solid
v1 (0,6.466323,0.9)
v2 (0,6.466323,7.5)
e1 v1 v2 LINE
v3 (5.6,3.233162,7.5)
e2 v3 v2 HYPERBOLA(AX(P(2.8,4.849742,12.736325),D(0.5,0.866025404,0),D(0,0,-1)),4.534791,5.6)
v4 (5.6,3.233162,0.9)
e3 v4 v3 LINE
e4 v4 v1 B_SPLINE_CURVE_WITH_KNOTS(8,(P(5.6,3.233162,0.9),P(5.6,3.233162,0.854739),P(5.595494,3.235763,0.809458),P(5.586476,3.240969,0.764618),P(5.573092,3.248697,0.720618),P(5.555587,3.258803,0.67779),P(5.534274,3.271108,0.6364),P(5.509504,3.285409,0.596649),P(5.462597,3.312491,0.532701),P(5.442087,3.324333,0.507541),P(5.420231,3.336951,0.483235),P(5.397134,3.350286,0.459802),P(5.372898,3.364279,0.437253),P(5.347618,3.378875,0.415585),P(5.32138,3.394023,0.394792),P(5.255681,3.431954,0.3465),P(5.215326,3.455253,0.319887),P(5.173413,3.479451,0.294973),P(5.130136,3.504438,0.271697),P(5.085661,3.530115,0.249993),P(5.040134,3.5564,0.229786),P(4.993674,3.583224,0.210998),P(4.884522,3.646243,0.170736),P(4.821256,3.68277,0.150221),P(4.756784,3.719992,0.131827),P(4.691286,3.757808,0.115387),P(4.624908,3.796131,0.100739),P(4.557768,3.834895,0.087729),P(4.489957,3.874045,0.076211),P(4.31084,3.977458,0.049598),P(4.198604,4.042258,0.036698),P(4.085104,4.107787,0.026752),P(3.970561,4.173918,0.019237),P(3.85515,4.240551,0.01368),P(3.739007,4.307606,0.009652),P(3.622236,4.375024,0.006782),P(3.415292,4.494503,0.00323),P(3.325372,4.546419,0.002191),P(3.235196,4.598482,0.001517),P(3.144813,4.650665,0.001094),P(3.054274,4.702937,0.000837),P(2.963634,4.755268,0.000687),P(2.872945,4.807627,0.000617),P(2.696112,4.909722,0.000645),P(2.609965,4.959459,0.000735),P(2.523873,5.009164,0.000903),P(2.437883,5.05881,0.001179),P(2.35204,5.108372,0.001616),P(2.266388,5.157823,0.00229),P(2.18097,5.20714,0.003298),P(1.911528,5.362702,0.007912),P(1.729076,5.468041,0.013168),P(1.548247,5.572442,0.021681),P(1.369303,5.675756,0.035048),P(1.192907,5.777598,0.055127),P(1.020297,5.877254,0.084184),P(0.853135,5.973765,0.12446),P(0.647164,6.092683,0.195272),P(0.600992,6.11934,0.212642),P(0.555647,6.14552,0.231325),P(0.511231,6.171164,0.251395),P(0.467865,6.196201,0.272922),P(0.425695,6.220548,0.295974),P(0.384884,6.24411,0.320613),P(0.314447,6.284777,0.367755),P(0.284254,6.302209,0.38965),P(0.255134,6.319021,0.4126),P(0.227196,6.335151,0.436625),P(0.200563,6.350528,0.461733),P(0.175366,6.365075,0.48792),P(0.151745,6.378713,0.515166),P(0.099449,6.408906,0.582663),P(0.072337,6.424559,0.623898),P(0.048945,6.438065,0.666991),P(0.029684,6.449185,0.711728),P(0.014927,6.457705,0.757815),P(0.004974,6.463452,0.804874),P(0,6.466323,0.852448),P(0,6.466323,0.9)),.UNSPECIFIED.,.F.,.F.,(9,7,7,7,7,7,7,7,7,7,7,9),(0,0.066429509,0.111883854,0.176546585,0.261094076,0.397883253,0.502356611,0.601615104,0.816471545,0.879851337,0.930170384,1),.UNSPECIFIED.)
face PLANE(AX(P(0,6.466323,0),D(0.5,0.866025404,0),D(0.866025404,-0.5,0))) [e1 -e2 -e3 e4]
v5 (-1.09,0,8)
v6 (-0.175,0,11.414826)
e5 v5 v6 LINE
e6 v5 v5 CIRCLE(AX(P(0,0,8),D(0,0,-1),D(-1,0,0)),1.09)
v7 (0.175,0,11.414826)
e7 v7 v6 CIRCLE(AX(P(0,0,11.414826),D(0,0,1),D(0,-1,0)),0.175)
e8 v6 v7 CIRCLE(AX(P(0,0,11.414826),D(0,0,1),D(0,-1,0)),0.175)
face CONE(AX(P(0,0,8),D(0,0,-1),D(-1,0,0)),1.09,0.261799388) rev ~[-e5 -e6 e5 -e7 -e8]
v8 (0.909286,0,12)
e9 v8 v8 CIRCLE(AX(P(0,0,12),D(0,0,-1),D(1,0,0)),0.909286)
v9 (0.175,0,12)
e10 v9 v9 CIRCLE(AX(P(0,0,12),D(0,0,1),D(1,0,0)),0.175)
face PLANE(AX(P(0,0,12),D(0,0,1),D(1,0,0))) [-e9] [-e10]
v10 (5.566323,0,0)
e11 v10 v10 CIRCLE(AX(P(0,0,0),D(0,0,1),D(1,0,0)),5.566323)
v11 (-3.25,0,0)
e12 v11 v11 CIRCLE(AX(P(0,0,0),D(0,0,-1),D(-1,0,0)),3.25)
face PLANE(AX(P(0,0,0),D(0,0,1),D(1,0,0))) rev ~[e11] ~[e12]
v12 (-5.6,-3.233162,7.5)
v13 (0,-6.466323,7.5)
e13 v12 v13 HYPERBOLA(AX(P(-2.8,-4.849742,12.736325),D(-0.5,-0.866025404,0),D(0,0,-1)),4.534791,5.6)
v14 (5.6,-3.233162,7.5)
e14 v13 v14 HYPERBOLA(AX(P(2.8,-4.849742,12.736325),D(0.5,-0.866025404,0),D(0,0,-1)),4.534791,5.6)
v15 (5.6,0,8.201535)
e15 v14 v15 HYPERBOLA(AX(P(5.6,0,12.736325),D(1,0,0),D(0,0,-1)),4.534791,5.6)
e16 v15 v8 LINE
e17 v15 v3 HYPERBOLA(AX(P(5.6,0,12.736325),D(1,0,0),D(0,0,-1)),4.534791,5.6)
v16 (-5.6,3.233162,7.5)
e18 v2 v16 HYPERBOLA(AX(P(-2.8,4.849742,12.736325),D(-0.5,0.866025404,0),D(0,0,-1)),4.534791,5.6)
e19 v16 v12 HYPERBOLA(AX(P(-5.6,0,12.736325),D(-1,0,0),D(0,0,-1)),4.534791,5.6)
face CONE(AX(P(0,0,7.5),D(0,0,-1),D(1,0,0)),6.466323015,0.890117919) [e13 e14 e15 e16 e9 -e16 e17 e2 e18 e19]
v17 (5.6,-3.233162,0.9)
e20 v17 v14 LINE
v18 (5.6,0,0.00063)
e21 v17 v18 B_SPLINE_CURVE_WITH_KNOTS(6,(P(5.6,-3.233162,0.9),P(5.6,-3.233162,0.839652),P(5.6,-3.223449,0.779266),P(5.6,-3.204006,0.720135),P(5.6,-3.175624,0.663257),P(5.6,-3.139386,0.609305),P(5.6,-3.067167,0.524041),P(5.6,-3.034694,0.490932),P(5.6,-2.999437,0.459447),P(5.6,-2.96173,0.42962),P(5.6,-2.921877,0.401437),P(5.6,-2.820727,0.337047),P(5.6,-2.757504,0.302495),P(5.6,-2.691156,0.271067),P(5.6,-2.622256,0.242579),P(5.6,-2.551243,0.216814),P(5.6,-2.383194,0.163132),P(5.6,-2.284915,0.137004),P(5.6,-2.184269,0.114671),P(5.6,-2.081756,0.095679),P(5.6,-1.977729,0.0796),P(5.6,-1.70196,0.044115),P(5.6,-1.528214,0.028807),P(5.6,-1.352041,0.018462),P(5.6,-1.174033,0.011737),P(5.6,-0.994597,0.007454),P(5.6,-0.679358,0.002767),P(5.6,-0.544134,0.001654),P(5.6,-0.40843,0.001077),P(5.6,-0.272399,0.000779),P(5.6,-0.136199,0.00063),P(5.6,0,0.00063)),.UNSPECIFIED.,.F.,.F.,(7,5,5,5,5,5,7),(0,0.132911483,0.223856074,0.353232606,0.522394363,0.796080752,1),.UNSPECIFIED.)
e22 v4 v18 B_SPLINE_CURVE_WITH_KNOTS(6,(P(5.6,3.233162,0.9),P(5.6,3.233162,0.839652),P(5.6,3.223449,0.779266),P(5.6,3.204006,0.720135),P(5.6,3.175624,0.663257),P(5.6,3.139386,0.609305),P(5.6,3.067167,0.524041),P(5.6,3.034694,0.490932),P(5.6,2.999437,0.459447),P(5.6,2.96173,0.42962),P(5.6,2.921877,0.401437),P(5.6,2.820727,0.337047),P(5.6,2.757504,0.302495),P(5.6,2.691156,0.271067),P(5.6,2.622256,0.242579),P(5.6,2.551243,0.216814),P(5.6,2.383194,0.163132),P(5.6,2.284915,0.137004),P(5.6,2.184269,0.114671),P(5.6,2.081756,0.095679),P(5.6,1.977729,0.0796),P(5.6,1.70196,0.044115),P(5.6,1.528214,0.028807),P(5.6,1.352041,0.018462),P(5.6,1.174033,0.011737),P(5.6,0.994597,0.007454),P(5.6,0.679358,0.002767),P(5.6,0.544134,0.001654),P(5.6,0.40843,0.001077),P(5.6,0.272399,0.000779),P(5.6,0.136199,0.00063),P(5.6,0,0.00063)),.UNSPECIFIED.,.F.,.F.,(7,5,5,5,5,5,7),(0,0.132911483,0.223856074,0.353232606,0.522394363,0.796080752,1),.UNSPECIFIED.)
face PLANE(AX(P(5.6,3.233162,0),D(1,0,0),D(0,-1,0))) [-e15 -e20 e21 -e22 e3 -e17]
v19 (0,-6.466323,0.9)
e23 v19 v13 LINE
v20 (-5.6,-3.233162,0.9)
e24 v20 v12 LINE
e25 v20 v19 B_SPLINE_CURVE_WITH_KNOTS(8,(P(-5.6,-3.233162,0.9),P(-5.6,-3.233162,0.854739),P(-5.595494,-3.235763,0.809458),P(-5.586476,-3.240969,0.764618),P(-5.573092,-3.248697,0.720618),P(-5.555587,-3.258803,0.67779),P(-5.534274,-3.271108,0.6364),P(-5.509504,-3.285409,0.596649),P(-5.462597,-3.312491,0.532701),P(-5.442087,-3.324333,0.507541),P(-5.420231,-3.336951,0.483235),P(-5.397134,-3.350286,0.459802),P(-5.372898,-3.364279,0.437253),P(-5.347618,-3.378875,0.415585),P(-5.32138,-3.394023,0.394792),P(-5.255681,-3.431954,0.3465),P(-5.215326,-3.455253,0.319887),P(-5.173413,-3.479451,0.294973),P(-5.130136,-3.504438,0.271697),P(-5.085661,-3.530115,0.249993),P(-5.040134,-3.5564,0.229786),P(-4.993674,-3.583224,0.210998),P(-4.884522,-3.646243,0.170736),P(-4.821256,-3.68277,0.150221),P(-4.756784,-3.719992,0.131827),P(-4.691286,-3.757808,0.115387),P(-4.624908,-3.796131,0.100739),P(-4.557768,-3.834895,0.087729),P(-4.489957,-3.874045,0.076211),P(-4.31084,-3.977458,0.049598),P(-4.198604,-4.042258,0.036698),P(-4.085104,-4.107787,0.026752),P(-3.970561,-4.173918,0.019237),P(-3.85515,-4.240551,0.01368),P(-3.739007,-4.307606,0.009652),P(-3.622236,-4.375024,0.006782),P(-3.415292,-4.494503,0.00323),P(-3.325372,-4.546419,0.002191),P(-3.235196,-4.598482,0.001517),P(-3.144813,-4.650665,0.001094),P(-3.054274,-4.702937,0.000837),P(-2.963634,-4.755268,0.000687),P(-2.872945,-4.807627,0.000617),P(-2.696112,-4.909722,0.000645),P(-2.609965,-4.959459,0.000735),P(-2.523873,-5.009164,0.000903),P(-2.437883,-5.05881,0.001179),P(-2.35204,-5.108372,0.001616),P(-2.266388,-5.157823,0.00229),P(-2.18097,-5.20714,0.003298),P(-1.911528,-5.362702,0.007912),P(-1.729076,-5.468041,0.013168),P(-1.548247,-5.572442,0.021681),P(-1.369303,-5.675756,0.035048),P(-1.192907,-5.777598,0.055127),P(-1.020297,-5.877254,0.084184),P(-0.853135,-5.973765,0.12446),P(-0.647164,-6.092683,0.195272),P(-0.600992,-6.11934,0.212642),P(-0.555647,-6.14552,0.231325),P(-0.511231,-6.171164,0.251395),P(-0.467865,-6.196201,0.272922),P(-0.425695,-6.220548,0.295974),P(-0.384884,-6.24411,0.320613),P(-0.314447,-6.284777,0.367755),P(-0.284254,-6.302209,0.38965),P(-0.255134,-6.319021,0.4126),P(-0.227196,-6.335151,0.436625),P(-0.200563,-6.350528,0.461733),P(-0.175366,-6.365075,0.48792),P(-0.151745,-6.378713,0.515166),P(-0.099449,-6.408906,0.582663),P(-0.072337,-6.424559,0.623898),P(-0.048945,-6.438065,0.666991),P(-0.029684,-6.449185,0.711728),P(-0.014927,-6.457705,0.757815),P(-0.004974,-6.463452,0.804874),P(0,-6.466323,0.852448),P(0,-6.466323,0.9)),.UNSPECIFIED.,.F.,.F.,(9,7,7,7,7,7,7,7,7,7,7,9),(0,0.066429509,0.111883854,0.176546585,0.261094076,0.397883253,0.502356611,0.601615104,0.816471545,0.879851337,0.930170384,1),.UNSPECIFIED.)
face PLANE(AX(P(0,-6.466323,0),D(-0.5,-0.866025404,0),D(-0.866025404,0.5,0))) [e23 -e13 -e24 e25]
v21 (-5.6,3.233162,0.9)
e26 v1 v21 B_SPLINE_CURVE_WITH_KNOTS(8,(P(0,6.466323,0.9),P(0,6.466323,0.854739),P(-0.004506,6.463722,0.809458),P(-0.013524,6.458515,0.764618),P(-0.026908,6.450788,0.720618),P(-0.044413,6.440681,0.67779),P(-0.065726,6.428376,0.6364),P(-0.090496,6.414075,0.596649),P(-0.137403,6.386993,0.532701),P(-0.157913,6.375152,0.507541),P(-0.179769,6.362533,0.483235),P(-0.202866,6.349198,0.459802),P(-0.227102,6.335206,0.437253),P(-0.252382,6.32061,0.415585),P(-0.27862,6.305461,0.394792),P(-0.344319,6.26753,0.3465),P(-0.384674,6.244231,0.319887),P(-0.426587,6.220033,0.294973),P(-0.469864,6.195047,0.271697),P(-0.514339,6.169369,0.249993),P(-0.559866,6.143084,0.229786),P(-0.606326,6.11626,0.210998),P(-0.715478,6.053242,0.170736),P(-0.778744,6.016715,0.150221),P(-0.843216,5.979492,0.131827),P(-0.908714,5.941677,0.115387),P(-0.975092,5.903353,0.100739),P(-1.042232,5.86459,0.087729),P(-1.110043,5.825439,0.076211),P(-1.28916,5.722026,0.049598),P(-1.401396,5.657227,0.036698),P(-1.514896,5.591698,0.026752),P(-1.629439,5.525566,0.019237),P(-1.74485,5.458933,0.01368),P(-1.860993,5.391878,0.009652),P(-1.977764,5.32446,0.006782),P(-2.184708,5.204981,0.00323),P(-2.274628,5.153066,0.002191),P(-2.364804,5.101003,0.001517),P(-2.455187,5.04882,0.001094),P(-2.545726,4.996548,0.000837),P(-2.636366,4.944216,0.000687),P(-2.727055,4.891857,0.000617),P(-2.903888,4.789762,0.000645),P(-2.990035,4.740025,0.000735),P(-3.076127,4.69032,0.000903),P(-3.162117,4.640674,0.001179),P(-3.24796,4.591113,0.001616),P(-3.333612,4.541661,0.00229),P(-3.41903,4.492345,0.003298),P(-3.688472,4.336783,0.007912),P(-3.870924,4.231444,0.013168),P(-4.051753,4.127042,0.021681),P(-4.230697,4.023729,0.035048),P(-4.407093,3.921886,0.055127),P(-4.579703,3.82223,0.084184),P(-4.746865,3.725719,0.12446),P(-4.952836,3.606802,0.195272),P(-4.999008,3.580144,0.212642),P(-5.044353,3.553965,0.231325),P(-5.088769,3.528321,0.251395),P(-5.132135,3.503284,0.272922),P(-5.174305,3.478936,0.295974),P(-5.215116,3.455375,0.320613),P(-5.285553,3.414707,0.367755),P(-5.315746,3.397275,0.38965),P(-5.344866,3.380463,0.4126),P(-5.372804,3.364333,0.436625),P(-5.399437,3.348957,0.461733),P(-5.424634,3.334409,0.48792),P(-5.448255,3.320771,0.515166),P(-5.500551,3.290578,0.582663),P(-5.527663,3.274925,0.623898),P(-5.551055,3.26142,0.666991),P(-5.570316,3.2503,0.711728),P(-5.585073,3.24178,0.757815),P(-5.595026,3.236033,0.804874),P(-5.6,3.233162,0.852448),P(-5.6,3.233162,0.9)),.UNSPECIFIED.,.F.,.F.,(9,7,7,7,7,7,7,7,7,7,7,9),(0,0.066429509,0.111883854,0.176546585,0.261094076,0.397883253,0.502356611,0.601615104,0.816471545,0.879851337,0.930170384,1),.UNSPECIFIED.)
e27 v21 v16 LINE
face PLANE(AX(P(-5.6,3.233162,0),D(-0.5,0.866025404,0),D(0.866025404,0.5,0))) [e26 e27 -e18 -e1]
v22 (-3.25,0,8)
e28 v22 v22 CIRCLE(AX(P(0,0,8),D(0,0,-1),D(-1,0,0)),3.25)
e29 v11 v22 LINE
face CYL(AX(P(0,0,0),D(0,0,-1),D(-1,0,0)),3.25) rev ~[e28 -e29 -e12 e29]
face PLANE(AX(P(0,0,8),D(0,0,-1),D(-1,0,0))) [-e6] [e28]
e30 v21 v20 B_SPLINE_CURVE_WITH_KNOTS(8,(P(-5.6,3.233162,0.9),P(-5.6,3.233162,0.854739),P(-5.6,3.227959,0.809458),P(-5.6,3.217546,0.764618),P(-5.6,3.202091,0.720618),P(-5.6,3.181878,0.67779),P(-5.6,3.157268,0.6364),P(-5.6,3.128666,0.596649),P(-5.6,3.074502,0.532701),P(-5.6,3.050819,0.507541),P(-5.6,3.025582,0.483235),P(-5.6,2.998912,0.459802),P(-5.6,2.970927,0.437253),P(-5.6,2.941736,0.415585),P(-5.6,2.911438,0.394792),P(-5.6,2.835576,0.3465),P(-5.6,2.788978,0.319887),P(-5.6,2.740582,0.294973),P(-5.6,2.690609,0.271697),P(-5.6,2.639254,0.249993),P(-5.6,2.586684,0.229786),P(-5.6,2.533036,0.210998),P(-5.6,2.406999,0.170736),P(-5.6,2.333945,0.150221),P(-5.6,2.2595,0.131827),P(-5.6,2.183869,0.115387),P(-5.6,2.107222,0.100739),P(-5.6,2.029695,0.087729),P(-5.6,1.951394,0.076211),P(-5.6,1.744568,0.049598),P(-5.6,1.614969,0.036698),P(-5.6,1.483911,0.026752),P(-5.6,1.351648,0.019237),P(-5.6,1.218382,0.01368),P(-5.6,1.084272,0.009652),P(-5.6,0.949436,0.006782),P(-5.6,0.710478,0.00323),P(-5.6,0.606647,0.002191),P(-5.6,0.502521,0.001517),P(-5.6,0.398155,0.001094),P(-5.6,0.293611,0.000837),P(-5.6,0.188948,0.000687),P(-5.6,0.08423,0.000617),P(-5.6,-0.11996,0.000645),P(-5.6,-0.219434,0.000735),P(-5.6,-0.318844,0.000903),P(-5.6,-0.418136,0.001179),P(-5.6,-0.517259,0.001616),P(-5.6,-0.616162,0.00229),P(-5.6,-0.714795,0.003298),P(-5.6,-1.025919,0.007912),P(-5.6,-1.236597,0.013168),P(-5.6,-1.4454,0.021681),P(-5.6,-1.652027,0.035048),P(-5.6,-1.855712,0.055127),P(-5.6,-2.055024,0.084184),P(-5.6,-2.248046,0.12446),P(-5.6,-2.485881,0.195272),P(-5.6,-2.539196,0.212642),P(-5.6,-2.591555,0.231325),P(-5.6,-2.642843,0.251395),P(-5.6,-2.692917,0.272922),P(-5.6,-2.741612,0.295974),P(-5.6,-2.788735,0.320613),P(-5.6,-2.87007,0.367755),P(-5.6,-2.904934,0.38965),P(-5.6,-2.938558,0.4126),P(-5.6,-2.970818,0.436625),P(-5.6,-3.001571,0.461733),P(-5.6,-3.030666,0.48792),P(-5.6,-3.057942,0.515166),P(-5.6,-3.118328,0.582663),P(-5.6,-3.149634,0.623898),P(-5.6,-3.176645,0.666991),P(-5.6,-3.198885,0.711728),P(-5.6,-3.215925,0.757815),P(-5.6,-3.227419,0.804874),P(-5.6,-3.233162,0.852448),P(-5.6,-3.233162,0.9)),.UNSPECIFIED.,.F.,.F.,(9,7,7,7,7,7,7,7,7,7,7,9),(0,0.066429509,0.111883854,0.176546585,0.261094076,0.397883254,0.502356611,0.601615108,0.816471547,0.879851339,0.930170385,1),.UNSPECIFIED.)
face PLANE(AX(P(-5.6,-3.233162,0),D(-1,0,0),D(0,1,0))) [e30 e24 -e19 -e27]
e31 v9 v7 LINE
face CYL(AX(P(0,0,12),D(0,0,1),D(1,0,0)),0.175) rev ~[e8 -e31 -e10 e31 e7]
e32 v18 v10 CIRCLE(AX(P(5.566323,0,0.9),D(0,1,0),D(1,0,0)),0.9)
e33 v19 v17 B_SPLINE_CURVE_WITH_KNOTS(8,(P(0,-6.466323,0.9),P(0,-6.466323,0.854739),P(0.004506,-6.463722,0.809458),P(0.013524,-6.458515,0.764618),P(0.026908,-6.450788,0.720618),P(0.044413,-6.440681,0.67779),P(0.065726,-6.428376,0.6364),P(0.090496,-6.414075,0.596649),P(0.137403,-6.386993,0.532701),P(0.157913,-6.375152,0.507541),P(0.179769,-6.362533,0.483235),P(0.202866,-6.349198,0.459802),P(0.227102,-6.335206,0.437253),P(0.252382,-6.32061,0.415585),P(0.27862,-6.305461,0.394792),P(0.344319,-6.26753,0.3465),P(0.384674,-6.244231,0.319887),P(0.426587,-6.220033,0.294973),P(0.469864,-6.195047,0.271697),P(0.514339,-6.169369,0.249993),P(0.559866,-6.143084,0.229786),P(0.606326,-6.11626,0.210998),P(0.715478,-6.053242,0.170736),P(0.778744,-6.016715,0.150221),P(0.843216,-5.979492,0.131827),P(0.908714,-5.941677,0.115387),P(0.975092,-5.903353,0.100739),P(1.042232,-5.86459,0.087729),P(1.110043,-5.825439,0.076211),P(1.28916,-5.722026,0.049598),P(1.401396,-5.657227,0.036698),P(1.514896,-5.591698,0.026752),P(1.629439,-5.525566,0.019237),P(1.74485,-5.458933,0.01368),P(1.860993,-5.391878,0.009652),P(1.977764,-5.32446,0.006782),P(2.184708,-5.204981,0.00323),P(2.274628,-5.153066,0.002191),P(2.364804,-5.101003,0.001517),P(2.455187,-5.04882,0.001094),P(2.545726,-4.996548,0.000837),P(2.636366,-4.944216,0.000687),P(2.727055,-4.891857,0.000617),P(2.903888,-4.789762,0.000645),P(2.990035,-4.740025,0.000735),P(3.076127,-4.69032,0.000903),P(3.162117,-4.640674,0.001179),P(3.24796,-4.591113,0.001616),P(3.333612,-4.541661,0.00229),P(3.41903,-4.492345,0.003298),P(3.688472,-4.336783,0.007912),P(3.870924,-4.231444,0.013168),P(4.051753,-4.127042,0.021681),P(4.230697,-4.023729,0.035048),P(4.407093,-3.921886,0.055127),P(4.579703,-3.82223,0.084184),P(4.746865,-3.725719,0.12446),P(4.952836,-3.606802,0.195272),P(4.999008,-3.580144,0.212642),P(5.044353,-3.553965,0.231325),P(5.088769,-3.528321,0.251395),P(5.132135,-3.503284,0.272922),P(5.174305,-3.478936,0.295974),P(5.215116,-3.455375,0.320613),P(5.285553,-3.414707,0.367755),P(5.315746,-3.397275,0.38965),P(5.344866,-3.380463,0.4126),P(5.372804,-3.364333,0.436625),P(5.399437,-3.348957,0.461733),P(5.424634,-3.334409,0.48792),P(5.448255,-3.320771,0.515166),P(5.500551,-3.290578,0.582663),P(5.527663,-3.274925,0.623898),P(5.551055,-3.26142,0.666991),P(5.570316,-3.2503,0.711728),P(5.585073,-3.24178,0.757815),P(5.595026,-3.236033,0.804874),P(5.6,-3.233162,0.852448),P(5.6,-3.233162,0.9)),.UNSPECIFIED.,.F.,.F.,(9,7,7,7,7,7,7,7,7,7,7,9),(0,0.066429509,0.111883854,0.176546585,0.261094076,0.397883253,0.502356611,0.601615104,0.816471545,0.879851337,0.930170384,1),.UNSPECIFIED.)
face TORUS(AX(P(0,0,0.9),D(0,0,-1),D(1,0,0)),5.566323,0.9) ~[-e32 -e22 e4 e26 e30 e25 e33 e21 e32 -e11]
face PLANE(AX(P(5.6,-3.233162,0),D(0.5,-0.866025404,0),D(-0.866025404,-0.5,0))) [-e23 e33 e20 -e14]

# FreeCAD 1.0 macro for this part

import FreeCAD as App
import Part
import Sketcher

V = App.Vector
Q = App.Units.Quantity


def edges_at(feature, points):
    """Names of the edges that pass closest to the given points."""
    edges = feature.Shape.Edges
    near = lambda p: min(range(len(edges)), key=lambda i: edges[i].distToShape(Part.Vertex(*p))[0])
    return sorted({f"Edge{near(p) + 1}" for p in points})


def faces_at(feature, points):
    """Names of the faces that lie closest to the given points."""
    faces = feature.Shape.Faces
    near = lambda p: min(range(len(faces)), key=lambda i: faces[i].distToShape(Part.Vertex(*p))[0])
    return sorted({f"Face{near(p) + 1}" for p in points})


def add_polygon(sketch, points):
    """Adds a closed chain of lines whose ends are joined by coincident constraints."""
    first, n = sketch.GeometryCount, len(points)
    for a, b in zip(points, points[1:] + points[:1]):
        sketch.addGeometry(Part.LineSegment(App.Vector(*a, 0), App.Vector(*b, 0)), False)
    for i in range(n):
        sketch.addConstraint(Sketcher.Constraint("Coincident", first + i, 2, first + (i + 1) % n, 1))

doc = App.newDocument("Part")
body = doc.addObject("PartDesign::Body", "Body")

# Sketch on XY plane
sketch1 = doc.addObject("Sketcher::SketchObject", "Sketch")
body.addObject(sketch1)
sketch1.AttachmentSupport = (doc.XY_Plane, [""])
sketch1.MapMode = "FlatFace"
sketch1.addGeometry(Part.Circle(V(0, 0, 0), V(0, 0, 1), 6.466323), False)
sketch1.addConstraint([
    Sketcher.Constraint("Coincident", 0, 3, -1, 1),
    Sketcher.Constraint("Diameter", 0, 12.932646),
])
pad1 = doc.addObject("PartDesign::Pad", "Pad")
body.addObject(pad1)
pad1.Profile = sketch1
pad1.Length = 7.5

# Sketch on XY plane
sketch2 = doc.addObject("Sketcher::SketchObject", "Sketch001")
body.addObject(sketch2)
sketch2.AttachmentSupport = (doc.XY_Plane, [""])
sketch2.MapMode = "FlatFace"
sketch2.AttachmentOffset = App.Placement(V(0, 0, 7.5), App.Rotation())
sketch2.addGeometry(Part.Circle(V(0, 0, 0), V(0, 0, 1), 6.466323), False)
sketch2.addConstraint([
    Sketcher.Constraint("Coincident", 0, 3, -1, 1),
    Sketcher.Constraint("Diameter", 0, 12.932646),
])
pad2 = doc.addObject("PartDesign::Pad", "Pad001")
body.addObject(pad2)
pad2.Profile = sketch2
pad2.Length = 4.5
pad2.TaperAngle = -51
doc.recompute()

fillet = doc.addObject("PartDesign::Fillet", "Fillet")
body.addObject(fillet)
fillet.Base = (pad2, edges_at(pad2, [(-6.466, 0, 0)]))
fillet.Radius = 0.9

# Sketch on XY plane
sketch3 = doc.addObject("Sketcher::SketchObject", "Sketch002")
body.addObject(sketch3)
sketch3.AttachmentSupport = (doc.XY_Plane, [""])
sketch3.MapMode = "FlatFace"
add_polygon(sketch3, [(9.653, 9.653), (9.653, -9.653), (-9.653, -9.653), (-9.653, 9.653)])  # lines 0-3
add_polygon(sketch3, [(5.6, 3.233162), (0, 6.466323), (-5.6, 3.233162), (-5.6, -3.233162), (0, -6.466323), (5.6, -3.233162)])  # lines 4-9
sketch3.addConstraint([
    Sketcher.Constraint("Vertical", 0),
    Sketcher.Constraint("Horizontal", 1),
    Sketcher.Constraint("Vertical", 2),
    Sketcher.Constraint("Horizontal", 3),
    Sketcher.Constraint("Vertical", 6),
    Sketcher.Constraint("Vertical", 9),
    Sketcher.Constraint("Symmetric", 0, 2, 2, 2, -1, 1),
    Sketcher.Constraint("Symmetric", 4, 2, 7, 2, -1, 1),
    Sketcher.Constraint("Symmetric", 5, 2, 8, 2, -1, 1),
    Sketcher.Constraint("PointOnObject", 4, 2, -2),
    Sketcher.Constraint("Parallel", 4, 7),
    Sketcher.Constraint("Horizontal", 6, 2, 8, 2),
    Sketcher.Constraint("Equal", 3, 0),
    Sketcher.Constraint("Angle", 4, Q("150 deg")),
    Sketcher.Constraint("DistanceX", 5, 2, -1, 1, 5.6),
    Sketcher.Constraint("DistanceX", 1, 2, 1, 1, 19.306),
    Sketcher.Constraint("DistanceY", 6, 2, 6, 1, 6.466323),
])
pocket1 = doc.addObject("PartDesign::Pocket", "Pocket")
body.addObject(pocket1)
pocket1.Profile = sketch3
pocket1.Type = "ThroughAll"
pocket1.Reversed = True

# Sketch on XY plane
sketch4 = doc.addObject("Sketcher::SketchObject", "Sketch003")
body.addObject(sketch4)
sketch4.AttachmentSupport = (doc.XY_Plane, [""])
sketch4.MapMode = "FlatFace"
sketch4.addGeometry(Part.Circle(V(0, 0, 0), V(0, 0, 1), 3.25), False)
sketch4.addConstraint([
    Sketcher.Constraint("Coincident", 0, 3, -1, 1),
    Sketcher.Constraint("Diameter", 0, 6.5),
])
pocket2 = doc.addObject("PartDesign::Pocket", "Pocket001")
body.addObject(pocket2)
pocket2.Profile = sketch4
pocket2.Length = 8
pocket2.Reversed = True

# Sketch on XY plane
sketch5 = doc.addObject("Sketcher::SketchObject", "Sketch004")
body.addObject(sketch5)
sketch5.AttachmentSupport = (doc.XY_Plane, [""])
sketch5.MapMode = "FlatFace"
sketch5.AttachmentOffset = App.Placement(V(0, 0, 12), App.Rotation())
sketch5.addGeometry(Part.Circle(V(0, 0, 0), V(0, 0, 1), 0.175), False)
sketch5.addConstraint([
    Sketcher.Constraint("Coincident", 0, 3, -1, 1),
    Sketcher.Constraint("Diameter", 0, 0.35),
])
pocket3 = doc.addObject("PartDesign::Pocket", "Pocket002")
body.addObject(pocket3)
pocket3.Profile = sketch5
pocket3.Type = "ThroughAll"
body2 = doc.addObject("PartDesign::Body", "Body001")

# Sketch on XY plane
sketch6 = doc.addObject("Sketcher::SketchObject", "Sketch005")
body2.addObject(sketch6)
sketch6.AttachmentSupport = (doc.getObject("XY_Plane001"), [""])
sketch6.MapMode = "FlatFace"
sketch6.AttachmentOffset = App.Placement(V(0, 0, 8), App.Rotation())
sketch6.addGeometry(Part.Circle(V(0, 0, 0), V(0, 0, 1), 1.09), False)
sketch6.addConstraint([
    Sketcher.Constraint("Coincident", 0, 3, -1, 1),
    Sketcher.Constraint("Diameter", 0, 2.18),
])
pad3 = doc.addObject("PartDesign::Pad", "Pad002")
body2.addObject(pad3)
pad3.Profile = sketch6
pad3.Length = 3.5
doc.recompute()

datumplane = doc.addObject("PartDesign::Plane", "DatumPlane")
body2.addObject(datumplane)
datumplane.AttachmentSupport = (doc.getObject("XY_Plane001"), [""])
datumplane.MapMode = "FlatFace"
datumplane.AttachmentOffset = App.Placement(V(0, 0, 8), App.Rotation())
draft = doc.addObject("PartDesign::Draft", "Draft")
body2.addObject(draft)
draft.Base = (pad3, faces_at(pad3, [(1.09, 0, 9.75)]))
draft.NeutralPlane = (datumplane, [""])
draft.Angle = 15
draft.Reversed = False
doc.recompute()

boolean = doc.addObject("PartDesign::Boolean", "Boolean")
body.addObject(boolean)
boolean.Type = "Cut"
boolean.addObjects([body2])

doc.recompute()
